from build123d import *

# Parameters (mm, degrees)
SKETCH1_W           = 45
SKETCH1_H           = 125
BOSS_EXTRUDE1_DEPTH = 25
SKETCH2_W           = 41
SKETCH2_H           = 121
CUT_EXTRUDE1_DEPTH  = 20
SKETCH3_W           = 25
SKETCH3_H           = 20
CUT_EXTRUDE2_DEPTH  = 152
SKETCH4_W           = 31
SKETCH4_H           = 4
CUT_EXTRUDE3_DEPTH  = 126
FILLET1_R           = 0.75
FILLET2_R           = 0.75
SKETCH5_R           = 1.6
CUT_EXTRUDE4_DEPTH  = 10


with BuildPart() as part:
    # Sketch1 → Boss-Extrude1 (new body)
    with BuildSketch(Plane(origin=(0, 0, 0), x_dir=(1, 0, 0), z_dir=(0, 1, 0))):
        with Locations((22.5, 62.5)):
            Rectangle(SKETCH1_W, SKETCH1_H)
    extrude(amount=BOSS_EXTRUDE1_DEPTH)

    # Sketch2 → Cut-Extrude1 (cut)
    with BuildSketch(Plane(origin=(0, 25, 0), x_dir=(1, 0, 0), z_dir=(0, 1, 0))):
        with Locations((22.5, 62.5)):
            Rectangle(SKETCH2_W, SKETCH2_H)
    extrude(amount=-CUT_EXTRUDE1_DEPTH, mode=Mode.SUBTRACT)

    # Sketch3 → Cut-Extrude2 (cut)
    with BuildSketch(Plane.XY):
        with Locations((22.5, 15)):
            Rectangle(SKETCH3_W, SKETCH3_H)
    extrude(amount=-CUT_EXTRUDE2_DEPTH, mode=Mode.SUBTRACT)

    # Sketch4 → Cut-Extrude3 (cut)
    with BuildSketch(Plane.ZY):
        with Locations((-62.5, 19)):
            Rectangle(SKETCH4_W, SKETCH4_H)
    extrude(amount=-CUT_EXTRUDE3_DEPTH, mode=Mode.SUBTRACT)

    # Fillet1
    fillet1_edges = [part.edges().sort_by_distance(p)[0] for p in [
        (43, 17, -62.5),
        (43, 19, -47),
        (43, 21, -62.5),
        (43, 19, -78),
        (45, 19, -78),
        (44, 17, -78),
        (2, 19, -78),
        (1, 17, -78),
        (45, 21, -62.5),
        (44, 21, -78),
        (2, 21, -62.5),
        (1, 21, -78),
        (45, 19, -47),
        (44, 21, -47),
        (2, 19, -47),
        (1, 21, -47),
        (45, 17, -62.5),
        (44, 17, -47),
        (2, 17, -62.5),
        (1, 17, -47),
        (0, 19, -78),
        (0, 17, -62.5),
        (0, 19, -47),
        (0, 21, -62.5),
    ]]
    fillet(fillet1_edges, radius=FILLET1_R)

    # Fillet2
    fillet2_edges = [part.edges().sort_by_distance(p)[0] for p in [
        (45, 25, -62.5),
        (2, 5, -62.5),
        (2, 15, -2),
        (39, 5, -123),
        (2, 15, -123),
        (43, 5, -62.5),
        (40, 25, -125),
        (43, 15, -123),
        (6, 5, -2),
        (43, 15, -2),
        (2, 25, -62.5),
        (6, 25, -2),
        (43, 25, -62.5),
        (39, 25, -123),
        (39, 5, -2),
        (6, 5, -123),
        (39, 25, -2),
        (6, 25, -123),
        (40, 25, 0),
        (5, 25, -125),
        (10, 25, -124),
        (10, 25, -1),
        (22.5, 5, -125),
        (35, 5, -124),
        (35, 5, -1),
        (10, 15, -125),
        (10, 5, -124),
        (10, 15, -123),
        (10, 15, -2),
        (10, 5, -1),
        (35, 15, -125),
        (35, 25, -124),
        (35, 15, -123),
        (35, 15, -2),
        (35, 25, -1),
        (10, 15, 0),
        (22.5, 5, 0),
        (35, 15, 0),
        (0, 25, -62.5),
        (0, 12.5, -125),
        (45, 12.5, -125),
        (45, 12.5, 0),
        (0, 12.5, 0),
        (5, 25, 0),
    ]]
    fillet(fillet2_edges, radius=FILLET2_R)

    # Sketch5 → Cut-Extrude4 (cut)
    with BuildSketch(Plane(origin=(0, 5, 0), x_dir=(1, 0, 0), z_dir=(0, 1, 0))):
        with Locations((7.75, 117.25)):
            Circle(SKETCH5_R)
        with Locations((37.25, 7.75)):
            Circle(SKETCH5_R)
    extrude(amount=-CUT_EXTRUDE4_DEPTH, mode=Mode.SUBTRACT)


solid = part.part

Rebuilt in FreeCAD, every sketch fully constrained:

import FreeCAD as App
import Part
import Sketcher
from FreeCAD import Vector
Q = App.Units.Quantity


def edges_at(feature, points):
    """Names of the edges that pass closest to the given points."""
    edges = feature.Shape.Edges
    near = lambda p: min(range(len(edges)), key=lambda i: edges[i].distToShape(Part.Vertex(*p))[0])
    return sorted({f"Edge{near(p) + 1}" for p in points})

doc = App.newDocument("Part")
body = doc.addObject("PartDesign::Body", "Body")

sketch1 = body.newObject("Sketcher::SketchObject", "Sketch")
sketch1.AttachmentSupport = (doc.getObject("XZ_Plane"), [""])
sketch1.MapMode = "FlatFace"
sketch1.addGeometry(Part.LineSegment(Vector(0, -125, 0), Vector(0, 0, 0)), False)
sketch1.addGeometry(Part.LineSegment(Vector(0, 0, 0), Vector(45, 0, 0)), False)
sketch1.addGeometry(Part.LineSegment(Vector(45, 0, 0), Vector(45, -125, 0)), False)
sketch1.addGeometry(Part.LineSegment(Vector(45, -125, 0), Vector(0, -125, 0)), False)
sketch1.addConstraint(Sketcher.Constraint("Coincident", 0, 2, 1, 1))
sketch1.addConstraint(Sketcher.Constraint("Coincident", 1, 2, 2, 1))
sketch1.addConstraint(Sketcher.Constraint("Coincident", 2, 2, 3, 1))
sketch1.addConstraint(Sketcher.Constraint("Coincident", 3, 2, 0, 1))
sketch1.addConstraint(Sketcher.Constraint("Vertical", 0))
sketch1.addConstraint(Sketcher.Constraint("Horizontal", 1))
sketch1.addConstraint(Sketcher.Constraint("Vertical", 2))
sketch1.addConstraint(Sketcher.Constraint("Horizontal", 3))
sketch1.addConstraint(Sketcher.Constraint("Coincident", 0, 2, -1, 1))
sketch1.addConstraint(Sketcher.Constraint("DistanceX", 1, 1, 1, 2, Q("45 mm")))
sketch1.addConstraint(Sketcher.Constraint("DistanceY", 0, 1, 0, 2, Q("125 mm")))
pad1 = body.newObject("PartDesign::Pad", "Pad")
pad1.Profile = sketch1
pad1.Length = 25
pad1.Reversed = True

sketch2 = body.newObject("Sketcher::SketchObject", "Sketch001")
sketch2.AttachmentSupport = (doc.getObject("XZ_Plane"), [""])
sketch2.MapMode = "FlatFace"
sketch2.AttachmentOffset = App.Placement(Vector(0, 0, -25), App.Rotation())
sketch2.addGeometry(Part.LineSegment(Vector(2, -123, 0), Vector(2, -2, 0)), False)
sketch2.addGeometry(Part.LineSegment(Vector(2, -2, 0), Vector(43, -2, 0)), False)
sketch2.addGeometry(Part.LineSegment(Vector(43, -2, 0), Vector(43, -123, 0)), False)
sketch2.addGeometry(Part.LineSegment(Vector(43, -123, 0), Vector(2, -123, 0)), False)
sketch2.addConstraint(Sketcher.Constraint("Coincident", 0, 2, 1, 1))
sketch2.addConstraint(Sketcher.Constraint("Coincident", 1, 2, 2, 1))
sketch2.addConstraint(Sketcher.Constraint("Coincident", 2, 2, 3, 1))
sketch2.addConstraint(Sketcher.Constraint("Coincident", 3, 2, 0, 1))
sketch2.addConstraint(Sketcher.Constraint("Vertical", 0))
sketch2.addConstraint(Sketcher.Constraint("Horizontal", 1))
sketch2.addConstraint(Sketcher.Constraint("Vertical", 2))
sketch2.addConstraint(Sketcher.Constraint("Horizontal", 3))
sketch2.addConstraint(Sketcher.Constraint("DistanceX", 1, 1, 1, 2, Q("41 mm")))
sketch2.addConstraint(Sketcher.Constraint("DistanceY", 0, 1, 0, 2, Q("121 mm")))
sketch2.addConstraint(Sketcher.Constraint("DistanceX", -1, 1, 0, 2, Q("2 mm")))
sketch2.addConstraint(Sketcher.Constraint("DistanceY", 0, 2, -1, 1, Q("2 mm")))
pocket1 = body.newObject("PartDesign::Pocket", "Pocket")
pocket1.Profile = sketch2
pocket1.Length = 20
pocket1.Reversed = True

sketch3 = body.newObject("Sketcher::SketchObject", "Sketch002")
sketch3.AttachmentSupport = (doc.getObject("XY_Plane"), [""])
sketch3.MapMode = "FlatFace"
sketch3.addGeometry(Part.LineSegment(Vector(10, 25, 0), Vector(10, 5, 0)), False)
sketch3.addGeometry(Part.LineSegment(Vector(10, 5, 0), Vector(35, 5, 0)), False)
sketch3.addGeometry(Part.LineSegment(Vector(35, 5, 0), Vector(35, 25, 0)), False)
sketch3.addGeometry(Part.LineSegment(Vector(35, 25, 0), Vector(10, 25, 0)), False)
sketch3.addConstraint(Sketcher.Constraint("Coincident", 0, 2, 1, 1))
sketch3.addConstraint(Sketcher.Constraint("Coincident", 1, 2, 2, 1))
sketch3.addConstraint(Sketcher.Constraint("Coincident", 2, 2, 3, 1))
sketch3.addConstraint(Sketcher.Constraint("Coincident", 3, 2, 0, 1))
sketch3.addConstraint(Sketcher.Constraint("Vertical", 0))
sketch3.addConstraint(Sketcher.Constraint("Horizontal", 1))
sketch3.addConstraint(Sketcher.Constraint("Vertical", 2))
sketch3.addConstraint(Sketcher.Constraint("Horizontal", 3))
sketch3.addConstraint(Sketcher.Constraint("DistanceX", 1, 1, 1, 2, Q("25 mm")))
sketch3.addConstraint(Sketcher.Constraint("DistanceY", 0, 2, 0, 1, Q("20 mm")))
sketch3.addConstraint(Sketcher.Constraint("DistanceX", -1, 1, 0, 2, Q("10 mm")))
sketch3.addConstraint(Sketcher.Constraint("DistanceY", -1, 1, 0, 2, Q("5 mm")))
pocket2 = body.newObject("PartDesign::Pocket", "Pocket001")
pocket2.Profile = sketch3
pocket2.Length = 152

sketch4 = body.newObject("Sketcher::SketchObject", "Sketch003")
sketch4.AttachmentSupport = (doc.getObject("YZ_Plane"), [""])
sketch4.MapMode = "FlatFace"
sketch4.addGeometry(Part.LineSegment(Vector(21, -78, 0), Vector(17, -78, 0)), False)
sketch4.addGeometry(Part.LineSegment(Vector(17, -78, 0), Vector(17, -47, 0)), False)
sketch4.addGeometry(Part.LineSegment(Vector(17, -47, 0), Vector(21, -47, 0)), False)
sketch4.addGeometry(Part.LineSegment(Vector(21, -47, 0), Vector(21, -78, 0)), False)
sketch4.addConstraint(Sketcher.Constraint("Coincident", 0, 2, 1, 1))
sketch4.addConstraint(Sketcher.Constraint("Coincident", 1, 2, 2, 1))
sketch4.addConstraint(Sketcher.Constraint("Coincident", 2, 2, 3, 1))
sketch4.addConstraint(Sketcher.Constraint("Coincident", 3, 2, 0, 1))
sketch4.addConstraint(Sketcher.Constraint("Horizontal", 0))
sketch4.addConstraint(Sketcher.Constraint("Vertical", 1))
sketch4.addConstraint(Sketcher.Constraint("Horizontal", 2))
sketch4.addConstraint(Sketcher.Constraint("Vertical", 3))
sketch4.addConstraint(Sketcher.Constraint("DistanceX", 0, 2, 0, 1, Q("4 mm")))
sketch4.addConstraint(Sketcher.Constraint("DistanceY", 1, 1, 1, 2, Q("31 mm")))
sketch4.addConstraint(Sketcher.Constraint("DistanceX", -1, 1, 0, 2, Q("17 mm")))
sketch4.addConstraint(Sketcher.Constraint("DistanceY", 0, 2, -1, 1, Q("78 mm")))
pocket3 = body.newObject("PartDesign::Pocket", "Pocket002")
pocket3.Profile = sketch4
pocket3.Length = 126
pocket3.Reversed = True
doc.recompute()

fillet = body.newObject("PartDesign::Fillet", "Fillet")
fillet.Base = (pocket3, edges_at(pocket3, [
    (43, 17, -62.5),
    (43, 19, -47),
    (43, 21, -62.5),
    (43, 19, -78),
    (45, 19, -78),
    (44, 17, -78),
    (2, 19, -78),
    (1, 17, -78),
    (45, 21, -62.5),
    (44, 21, -78),
    (2, 21, -62.5),
    (1, 21, -78),
    (45, 19, -47),
    (44, 21, -47),
    (2, 19, -47),
    (1, 21, -47),
    (45, 17, -62.5),
    (44, 17, -47),
    (2, 17, -62.5),
    (1, 17, -47),
    (0, 19, -78),
    (0, 17, -62.5),
    (0, 19, -47),
    (0, 21, -62.5),
]))
fillet.Radius = 0.75
doc.recompute()

fillet2 = body.newObject("PartDesign::Fillet", "Fillet001")
fillet2.Base = (fillet, edges_at(fillet, [
    (45, 25, -62.5),
    (2, 5, -62.5),
    (2, 15, -2),
    (39, 5, -123),
    (2, 15, -123),
    (43, 5, -62.5),
    (40, 25, -125),
    (43, 15, -123),
    (6, 5, -2),
    (43, 15, -2),
    (2, 25, -62.5),
    (6, 25, -2),
    (43, 25, -62.5),
    (39, 25, -123),
    (39, 5, -2),
    (6, 5, -123),
    (39, 25, -2),
    (6, 25, -123),
    (40, 25, 0),
    (5, 25, -125),
    (10, 25, -124),
    (10, 25, -1),
    (22.5, 5, -125),
    (35, 5, -124),
    (35, 5, -1),
    (10, 15, -125),
    (10, 5, -124),
    (10, 15, -123),
    (10, 15, -2),
    (10, 5, -1),
    (35, 15, -125),
    (35, 25, -124),
    (35, 15, -123),
    (35, 15, -2),
    (35, 25, -1),
    (10, 15, 0),
    (22.5, 5, 0),
    (35, 15, 0),
    (0, 25, -62.5),
    (0, 12.5, -125),
    (45, 12.5, -125),
    (45, 12.5, 0),
    (0, 12.5, 0),
    (5, 25, 0),
]))
fillet2.Radius = 0.75

sketch5 = body.newObject("Sketcher::SketchObject", "Sketch004")
sketch5.AttachmentSupport = (doc.getObject("XZ_Plane"), [""])
sketch5.MapMode = "FlatFace"
sketch5.AttachmentOffset = App.Placement(Vector(0, 0, -5), App.Rotation())
sketch5.addGeometry(Part.Circle(Vector(7.75, -117.25, 0), Vector(0, 0, 1), 1.6), False)
sketch5.addGeometry(Part.Circle(Vector(37.25, -7.75, 0), Vector(0, 0, 1), 1.6), False)
sketch5.addConstraint(Sketcher.Constraint("Equal", 0, 1))
sketch5.addConstraint(Sketcher.Constraint("Diameter", 0, Q("3.2 mm")))
sketch5.addConstraint(Sketcher.Constraint("DistanceX", 0, 3, 1, 3, Q("29.5 mm")))
sketch5.addConstraint(Sketcher.Constraint("DistanceY", 0, 3, 1, 3, Q("109.5 mm")))
sketch5.addConstraint(Sketcher.Constraint("DistanceX", -1, 1, 0, 3, Q("7.75 mm")))
sketch5.addConstraint(Sketcher.Constraint("DistanceY", 0, 3, -1, 1, Q("117.25 mm")))
pocket4 = body.newObject("PartDesign::Pocket", "Pocket003")
pocket4.Profile = sketch5
pocket4.Length = 10
pocket4.Reversed = True

doc.recompute()
